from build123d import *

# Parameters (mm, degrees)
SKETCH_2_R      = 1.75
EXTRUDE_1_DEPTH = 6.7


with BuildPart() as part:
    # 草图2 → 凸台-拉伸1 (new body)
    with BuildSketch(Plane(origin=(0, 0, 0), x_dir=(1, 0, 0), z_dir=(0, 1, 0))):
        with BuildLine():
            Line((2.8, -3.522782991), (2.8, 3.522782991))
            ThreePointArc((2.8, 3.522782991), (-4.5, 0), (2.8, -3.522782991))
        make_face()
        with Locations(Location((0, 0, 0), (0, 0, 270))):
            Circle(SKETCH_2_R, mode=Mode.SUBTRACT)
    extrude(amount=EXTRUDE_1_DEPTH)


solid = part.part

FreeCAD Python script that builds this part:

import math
import FreeCAD as App
import Part
import Sketcher

doc = App.newDocument("Part")
params = doc.addObject("Spreadsheet::Sheet", "Params")
for row, (alias, value) in enumerate([
    ("sketch1_diameter", "3.5 mm"),
    ("sketch1_radius", "4.5 mm"),
    ("pad1_length", "6.7 mm"),
], start=1):
    params.set(f"A{row}", alias)
    params.set(f"B{row}", "=" + value)
    params.setAlias(f"B{row}", alias)

body = doc.addObject("PartDesign::Body", "Body")

# Sketch on XZ plane
sketch1 = body.newObject("Sketcher::SketchObject", "Sketch")
sketch1.AttachmentSupport = (doc.getObject("XZ_Plane"), [""])
sketch1.MapMode = "FlatFace"
sketch1.addGeometry(Part.LineSegment(App.Vector(2.8, 3.5, 0), App.Vector(2.8, -3.5, 0)), False)
sketch1.addGeometry(Part.ArcOfCircle(Part.Circle(App.Vector(0, 0, 0), App.Vector(0, 0, 1), 4.5), math.radians(52), math.radians(308)), False)
sketch1.addGeometry(Part.Circle(App.Vector(0, 0, 0), App.Vector(0, 0, 1), 1.8), False)
sketch1.addConstraint(Sketcher.Constraint("Coincident", 0, 1, 1, 1))
sketch1.addConstraint(Sketcher.Constraint("Coincident", 1, 2, 0, 2))
sketch1.addConstraint(Sketcher.Constraint("Vertical", 0))
sketch1.addConstraint(Sketcher.Constraint("Coincident", 1, 3, -1, 1))
sketch1.addConstraint(Sketcher.Constraint("Coincident", 2, 3, -1, 1))
sketch1.addConstraint(Sketcher.Constraint("Diameter", 2, 3.5))
sketch1.addConstraint(Sketcher.Constraint("Radius", 1, 4.5))
sketch1.addConstraint(Sketcher.Constraint("DistanceX", -1, 1, 0, 1, 2.8))
sketch1.setExpression("Constraints[5]", "Params.sketch1_diameter")
sketch1.setExpression("Constraints[6]", "Params.sketch1_radius")
pad1 = body.newObject("PartDesign::Pad", "Pad")
pad1.Profile = sketch1
pad1.setExpression("Length", "Params.pad1_length")
pad1.Reversed = True

doc.recompute()
